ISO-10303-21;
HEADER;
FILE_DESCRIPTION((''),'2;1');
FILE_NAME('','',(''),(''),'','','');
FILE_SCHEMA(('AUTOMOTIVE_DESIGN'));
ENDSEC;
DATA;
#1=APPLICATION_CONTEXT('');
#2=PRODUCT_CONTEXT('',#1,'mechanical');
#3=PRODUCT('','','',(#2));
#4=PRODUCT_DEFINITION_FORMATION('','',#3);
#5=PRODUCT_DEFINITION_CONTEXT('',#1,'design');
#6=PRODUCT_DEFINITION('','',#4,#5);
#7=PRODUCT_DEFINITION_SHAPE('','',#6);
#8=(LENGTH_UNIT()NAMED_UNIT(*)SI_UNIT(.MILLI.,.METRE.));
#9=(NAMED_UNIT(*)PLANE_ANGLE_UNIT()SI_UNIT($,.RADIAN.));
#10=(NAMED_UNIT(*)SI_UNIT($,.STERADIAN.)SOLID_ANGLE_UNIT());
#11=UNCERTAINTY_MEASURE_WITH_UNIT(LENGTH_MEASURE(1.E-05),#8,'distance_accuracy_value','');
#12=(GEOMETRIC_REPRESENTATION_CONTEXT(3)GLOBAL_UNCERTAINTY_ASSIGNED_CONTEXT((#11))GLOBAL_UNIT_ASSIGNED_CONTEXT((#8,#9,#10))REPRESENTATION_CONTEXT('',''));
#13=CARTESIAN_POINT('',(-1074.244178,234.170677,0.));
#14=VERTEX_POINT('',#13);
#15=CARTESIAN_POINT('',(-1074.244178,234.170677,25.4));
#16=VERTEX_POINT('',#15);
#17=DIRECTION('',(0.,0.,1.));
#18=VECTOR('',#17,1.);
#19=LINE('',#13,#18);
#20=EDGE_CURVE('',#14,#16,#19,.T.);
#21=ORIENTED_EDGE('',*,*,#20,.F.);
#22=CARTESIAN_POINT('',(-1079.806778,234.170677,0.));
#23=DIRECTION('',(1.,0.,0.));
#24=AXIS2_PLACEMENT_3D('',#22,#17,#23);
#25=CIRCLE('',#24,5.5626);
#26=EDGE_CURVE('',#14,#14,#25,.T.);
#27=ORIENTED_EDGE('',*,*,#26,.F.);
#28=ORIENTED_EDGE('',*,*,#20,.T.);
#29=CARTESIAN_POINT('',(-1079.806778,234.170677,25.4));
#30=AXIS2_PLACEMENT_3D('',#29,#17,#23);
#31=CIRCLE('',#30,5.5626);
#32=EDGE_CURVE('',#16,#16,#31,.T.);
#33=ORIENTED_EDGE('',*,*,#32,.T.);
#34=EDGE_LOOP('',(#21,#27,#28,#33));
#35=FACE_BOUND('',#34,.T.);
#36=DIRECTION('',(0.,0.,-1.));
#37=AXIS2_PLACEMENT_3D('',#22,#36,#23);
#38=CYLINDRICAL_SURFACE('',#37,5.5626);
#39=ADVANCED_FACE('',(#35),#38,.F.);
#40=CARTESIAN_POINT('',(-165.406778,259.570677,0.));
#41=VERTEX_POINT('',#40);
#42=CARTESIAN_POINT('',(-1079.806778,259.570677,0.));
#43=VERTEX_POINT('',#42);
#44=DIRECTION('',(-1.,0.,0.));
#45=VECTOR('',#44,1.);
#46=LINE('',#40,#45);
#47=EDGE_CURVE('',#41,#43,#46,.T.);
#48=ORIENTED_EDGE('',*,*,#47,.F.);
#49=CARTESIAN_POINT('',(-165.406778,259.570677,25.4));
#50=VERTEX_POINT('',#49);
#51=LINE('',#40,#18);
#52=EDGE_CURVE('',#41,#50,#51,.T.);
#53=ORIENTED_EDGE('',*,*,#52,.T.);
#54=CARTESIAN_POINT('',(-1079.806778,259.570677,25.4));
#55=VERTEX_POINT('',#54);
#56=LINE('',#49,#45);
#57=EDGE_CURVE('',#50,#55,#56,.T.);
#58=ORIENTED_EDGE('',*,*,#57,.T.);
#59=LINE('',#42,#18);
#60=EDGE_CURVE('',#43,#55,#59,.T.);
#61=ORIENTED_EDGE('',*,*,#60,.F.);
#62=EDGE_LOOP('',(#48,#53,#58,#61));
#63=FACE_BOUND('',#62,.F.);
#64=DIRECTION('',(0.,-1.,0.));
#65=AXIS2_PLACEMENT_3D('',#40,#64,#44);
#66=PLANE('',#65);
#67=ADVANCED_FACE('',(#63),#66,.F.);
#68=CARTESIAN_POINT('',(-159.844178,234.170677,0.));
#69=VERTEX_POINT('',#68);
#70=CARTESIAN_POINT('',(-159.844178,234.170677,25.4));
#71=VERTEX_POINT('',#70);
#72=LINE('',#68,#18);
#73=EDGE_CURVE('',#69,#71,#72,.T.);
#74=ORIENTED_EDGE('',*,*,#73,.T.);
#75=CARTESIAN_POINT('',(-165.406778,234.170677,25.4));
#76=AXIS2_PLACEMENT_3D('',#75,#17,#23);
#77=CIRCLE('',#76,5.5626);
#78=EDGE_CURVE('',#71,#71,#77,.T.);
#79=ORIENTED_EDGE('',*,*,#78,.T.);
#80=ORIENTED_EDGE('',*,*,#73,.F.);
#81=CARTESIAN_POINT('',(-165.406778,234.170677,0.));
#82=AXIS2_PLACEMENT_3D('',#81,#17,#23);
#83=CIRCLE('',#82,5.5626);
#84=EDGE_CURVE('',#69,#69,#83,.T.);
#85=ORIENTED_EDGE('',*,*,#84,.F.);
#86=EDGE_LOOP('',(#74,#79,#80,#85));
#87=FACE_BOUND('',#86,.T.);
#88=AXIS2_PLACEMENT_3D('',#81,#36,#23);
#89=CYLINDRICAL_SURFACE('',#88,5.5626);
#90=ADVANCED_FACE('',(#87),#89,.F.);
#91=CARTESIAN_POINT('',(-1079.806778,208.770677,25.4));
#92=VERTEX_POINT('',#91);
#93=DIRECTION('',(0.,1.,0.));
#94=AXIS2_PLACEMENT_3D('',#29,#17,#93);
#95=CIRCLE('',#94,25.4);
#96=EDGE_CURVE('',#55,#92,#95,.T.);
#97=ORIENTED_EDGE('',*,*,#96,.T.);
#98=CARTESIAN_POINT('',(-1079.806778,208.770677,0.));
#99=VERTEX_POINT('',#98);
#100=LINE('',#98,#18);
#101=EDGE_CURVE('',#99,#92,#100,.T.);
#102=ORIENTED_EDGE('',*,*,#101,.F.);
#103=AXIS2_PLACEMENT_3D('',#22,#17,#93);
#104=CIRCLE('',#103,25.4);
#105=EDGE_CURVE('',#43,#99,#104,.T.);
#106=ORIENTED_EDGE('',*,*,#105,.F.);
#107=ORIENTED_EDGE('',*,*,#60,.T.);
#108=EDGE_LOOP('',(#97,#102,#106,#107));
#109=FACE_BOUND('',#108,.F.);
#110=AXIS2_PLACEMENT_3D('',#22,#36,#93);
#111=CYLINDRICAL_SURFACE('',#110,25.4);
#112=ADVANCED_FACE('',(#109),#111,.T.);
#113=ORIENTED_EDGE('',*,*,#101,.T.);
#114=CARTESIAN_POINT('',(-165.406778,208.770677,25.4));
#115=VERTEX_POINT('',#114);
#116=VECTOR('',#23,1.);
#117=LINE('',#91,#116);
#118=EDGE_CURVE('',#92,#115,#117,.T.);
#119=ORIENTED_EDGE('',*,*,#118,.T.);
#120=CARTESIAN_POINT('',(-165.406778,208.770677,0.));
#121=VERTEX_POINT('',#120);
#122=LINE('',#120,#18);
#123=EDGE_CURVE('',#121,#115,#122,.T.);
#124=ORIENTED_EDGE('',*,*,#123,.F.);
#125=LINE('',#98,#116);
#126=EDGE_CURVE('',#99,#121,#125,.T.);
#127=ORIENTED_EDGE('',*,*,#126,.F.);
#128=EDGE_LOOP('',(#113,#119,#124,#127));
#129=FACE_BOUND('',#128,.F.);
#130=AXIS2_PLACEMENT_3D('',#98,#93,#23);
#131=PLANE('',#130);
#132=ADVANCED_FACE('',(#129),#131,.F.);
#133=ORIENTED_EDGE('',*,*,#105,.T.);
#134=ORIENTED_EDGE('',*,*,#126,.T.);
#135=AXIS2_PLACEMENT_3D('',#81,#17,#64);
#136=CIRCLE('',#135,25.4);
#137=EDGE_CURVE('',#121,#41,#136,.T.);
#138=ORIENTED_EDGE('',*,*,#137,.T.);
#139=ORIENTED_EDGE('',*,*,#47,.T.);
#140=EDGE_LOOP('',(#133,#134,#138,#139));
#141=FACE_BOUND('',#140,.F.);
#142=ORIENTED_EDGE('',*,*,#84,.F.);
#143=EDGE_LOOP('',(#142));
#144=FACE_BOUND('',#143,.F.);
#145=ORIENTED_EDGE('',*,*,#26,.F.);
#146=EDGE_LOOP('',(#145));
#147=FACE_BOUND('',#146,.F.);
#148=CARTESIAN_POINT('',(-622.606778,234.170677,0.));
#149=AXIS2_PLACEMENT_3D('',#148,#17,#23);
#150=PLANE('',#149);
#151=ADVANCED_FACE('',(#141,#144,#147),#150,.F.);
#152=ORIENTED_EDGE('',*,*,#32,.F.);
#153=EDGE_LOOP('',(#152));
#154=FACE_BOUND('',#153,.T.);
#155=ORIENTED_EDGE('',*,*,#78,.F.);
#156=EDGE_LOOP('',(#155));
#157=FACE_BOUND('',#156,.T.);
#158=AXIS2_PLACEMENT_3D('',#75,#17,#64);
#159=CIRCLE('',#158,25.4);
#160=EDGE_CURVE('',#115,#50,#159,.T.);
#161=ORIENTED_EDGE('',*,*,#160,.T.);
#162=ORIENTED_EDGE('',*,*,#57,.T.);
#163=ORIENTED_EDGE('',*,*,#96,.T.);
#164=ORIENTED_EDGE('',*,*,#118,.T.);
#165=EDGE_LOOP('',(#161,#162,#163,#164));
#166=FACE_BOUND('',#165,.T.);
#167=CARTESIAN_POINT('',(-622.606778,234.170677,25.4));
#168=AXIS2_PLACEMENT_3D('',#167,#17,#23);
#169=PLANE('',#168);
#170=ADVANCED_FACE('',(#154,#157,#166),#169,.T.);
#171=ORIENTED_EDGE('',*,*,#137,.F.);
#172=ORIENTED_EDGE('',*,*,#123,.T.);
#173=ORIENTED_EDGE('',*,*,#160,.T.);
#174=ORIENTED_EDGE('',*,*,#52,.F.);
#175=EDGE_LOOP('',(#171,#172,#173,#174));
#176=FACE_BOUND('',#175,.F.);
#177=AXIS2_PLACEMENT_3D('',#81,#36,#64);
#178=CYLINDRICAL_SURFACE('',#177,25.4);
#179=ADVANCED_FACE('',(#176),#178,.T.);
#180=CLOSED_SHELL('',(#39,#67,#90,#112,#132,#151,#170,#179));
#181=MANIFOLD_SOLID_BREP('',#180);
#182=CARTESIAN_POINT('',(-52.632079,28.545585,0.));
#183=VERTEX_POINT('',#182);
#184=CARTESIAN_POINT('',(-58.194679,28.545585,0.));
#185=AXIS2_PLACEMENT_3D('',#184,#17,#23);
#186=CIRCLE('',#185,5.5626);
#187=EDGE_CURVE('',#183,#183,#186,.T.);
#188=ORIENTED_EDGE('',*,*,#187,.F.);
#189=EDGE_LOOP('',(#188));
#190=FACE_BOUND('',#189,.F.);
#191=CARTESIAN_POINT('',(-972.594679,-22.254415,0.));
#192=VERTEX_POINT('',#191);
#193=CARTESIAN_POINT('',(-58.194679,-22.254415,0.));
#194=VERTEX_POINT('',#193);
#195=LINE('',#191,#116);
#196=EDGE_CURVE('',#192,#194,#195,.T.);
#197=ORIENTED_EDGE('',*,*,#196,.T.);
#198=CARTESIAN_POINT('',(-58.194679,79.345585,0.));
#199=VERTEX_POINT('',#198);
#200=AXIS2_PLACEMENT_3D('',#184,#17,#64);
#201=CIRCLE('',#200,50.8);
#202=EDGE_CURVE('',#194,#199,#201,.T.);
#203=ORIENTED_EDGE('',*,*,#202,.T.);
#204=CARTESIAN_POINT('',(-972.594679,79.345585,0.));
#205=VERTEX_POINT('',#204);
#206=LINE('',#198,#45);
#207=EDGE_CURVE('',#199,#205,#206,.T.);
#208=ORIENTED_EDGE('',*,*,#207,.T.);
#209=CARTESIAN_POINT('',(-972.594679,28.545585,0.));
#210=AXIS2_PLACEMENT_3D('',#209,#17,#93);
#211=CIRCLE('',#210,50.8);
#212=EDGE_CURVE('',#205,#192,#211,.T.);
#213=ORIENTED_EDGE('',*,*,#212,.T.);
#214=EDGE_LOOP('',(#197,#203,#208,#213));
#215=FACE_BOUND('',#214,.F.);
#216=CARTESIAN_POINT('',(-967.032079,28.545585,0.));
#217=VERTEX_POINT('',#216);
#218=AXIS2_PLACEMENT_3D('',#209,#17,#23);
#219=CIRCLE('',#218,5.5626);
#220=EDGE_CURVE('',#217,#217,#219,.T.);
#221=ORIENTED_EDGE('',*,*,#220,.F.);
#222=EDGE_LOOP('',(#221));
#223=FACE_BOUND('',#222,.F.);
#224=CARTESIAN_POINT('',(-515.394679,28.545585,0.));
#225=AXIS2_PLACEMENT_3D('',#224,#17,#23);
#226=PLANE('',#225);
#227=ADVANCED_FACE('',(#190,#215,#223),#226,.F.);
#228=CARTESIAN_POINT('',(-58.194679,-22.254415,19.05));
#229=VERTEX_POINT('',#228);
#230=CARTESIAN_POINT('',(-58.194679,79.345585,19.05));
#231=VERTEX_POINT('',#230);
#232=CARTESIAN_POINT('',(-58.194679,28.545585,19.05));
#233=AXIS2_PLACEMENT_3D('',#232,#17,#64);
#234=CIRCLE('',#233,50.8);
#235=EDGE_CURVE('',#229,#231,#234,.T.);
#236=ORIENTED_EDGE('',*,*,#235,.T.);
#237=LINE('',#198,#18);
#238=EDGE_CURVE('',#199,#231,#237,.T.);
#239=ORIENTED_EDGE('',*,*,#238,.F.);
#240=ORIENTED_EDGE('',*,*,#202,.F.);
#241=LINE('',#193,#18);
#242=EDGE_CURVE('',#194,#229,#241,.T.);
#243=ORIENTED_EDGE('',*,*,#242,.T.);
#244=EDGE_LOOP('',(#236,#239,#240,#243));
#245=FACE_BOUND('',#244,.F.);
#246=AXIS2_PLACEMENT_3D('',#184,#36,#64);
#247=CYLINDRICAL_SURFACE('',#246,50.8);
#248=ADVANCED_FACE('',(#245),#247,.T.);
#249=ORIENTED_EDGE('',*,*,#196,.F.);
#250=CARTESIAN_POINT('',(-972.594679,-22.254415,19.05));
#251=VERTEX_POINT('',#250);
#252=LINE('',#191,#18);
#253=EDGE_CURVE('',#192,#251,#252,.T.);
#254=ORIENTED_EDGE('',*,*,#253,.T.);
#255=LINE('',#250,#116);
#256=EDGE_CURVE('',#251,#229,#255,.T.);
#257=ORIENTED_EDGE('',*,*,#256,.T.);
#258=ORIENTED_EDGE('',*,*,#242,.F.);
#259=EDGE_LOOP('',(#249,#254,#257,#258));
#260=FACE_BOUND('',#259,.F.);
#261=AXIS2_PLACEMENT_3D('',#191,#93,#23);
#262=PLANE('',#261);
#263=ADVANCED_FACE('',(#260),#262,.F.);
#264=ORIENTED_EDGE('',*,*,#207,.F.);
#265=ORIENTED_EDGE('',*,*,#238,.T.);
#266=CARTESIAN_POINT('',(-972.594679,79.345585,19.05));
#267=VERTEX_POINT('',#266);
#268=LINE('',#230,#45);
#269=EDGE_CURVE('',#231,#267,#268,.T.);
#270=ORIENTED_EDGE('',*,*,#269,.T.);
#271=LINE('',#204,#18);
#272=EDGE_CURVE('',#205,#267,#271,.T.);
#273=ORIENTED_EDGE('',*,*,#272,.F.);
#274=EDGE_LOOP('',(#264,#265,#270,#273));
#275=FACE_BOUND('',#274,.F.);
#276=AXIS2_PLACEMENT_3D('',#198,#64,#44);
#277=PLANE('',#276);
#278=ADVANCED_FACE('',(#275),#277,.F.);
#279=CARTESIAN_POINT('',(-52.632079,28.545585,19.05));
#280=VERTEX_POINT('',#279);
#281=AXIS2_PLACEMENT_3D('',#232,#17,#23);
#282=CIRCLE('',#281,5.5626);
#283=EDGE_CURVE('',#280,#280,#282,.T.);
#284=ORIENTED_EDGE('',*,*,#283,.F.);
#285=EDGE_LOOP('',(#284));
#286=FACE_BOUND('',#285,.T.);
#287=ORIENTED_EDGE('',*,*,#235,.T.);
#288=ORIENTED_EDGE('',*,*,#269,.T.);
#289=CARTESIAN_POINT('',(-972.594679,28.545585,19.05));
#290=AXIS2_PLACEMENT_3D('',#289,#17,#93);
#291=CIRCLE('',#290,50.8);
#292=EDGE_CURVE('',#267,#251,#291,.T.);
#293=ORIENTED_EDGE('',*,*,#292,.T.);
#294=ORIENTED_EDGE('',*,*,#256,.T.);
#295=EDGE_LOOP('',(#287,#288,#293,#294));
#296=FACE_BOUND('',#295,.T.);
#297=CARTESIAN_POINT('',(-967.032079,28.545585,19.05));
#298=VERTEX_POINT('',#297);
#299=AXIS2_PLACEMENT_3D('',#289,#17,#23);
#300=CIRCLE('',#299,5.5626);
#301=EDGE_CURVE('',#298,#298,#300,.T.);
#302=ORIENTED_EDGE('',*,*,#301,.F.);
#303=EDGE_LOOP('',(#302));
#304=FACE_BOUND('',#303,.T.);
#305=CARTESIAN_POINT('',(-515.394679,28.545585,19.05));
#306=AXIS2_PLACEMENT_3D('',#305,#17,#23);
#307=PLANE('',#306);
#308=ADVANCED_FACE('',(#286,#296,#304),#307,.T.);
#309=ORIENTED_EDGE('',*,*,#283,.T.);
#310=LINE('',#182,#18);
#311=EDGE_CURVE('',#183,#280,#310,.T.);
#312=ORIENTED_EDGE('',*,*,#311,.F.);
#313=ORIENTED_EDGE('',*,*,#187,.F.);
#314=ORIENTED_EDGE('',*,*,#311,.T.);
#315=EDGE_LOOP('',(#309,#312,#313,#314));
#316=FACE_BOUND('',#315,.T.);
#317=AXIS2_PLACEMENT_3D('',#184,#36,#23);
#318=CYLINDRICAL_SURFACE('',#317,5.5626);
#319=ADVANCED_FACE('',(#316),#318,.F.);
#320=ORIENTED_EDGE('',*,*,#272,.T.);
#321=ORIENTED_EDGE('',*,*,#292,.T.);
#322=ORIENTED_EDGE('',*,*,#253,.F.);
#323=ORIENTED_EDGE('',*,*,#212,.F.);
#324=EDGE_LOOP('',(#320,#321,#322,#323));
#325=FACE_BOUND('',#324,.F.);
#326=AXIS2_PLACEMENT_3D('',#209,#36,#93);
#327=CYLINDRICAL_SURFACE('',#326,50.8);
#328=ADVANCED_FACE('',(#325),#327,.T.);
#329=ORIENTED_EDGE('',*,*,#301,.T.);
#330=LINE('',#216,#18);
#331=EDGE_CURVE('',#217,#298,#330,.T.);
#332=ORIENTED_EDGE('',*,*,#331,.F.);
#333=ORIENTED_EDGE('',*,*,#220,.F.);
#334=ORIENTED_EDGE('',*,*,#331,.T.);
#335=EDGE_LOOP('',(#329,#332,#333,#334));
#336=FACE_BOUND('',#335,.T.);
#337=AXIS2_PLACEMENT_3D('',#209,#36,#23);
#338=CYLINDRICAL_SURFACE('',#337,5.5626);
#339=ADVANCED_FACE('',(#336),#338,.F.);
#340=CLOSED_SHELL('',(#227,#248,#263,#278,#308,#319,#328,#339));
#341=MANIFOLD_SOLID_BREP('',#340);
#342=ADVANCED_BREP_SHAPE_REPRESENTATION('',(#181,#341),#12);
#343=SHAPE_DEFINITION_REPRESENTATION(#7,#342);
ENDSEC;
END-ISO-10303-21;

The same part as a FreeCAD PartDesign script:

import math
import FreeCAD as App
import Part
import Sketcher

V = App.Vector
Q = App.Units.Quantity

doc = App.newDocument("Part")
body = doc.addObject("PartDesign::Body", "Body")

sketch1 = doc.addObject("Sketcher::SketchObject", "Sketch")
body.addObject(sketch1)
sketch1.AttachmentSupport = (doc.XY_Plane, [""])
sketch1.MapMode = "FlatFace"
sketch1.addGeometry([
    Part.LineSegment(V(-58.194679, 79.345585, 0), V(-972.594679, 79.345585, 0)),
    Part.ArcOfCircle(Part.Circle(V(-972.594679, 28.545585, 0), V(0, 0, 1), 50.8), math.radians(90), math.radians(270)),
    Part.LineSegment(V(-972.594679, -22.254415, 0), V(-58.194679, -22.254415, 0)),
    Part.ArcOfCircle(Part.Circle(V(-58.194679, 28.545585, 0), V(0, 0, 1), 50.8), math.radians(-90), math.radians(90)),
    Part.Circle(V(-972.594679, 28.545585, 0), V(0, 0, 1), 5.5626),
    Part.Circle(V(-58.194679, 28.545585, 0), V(0, 0, 1), 5.5626),
], False)
sketch1.addConstraint([
    Sketcher.Constraint("Tangent", 0, 2, 1, 1),
    Sketcher.Constraint("Tangent", 1, 2, 2, 1),
    Sketcher.Constraint("Tangent", 2, 2, 3, 1),
    Sketcher.Constraint("Tangent", 3, 2, 0, 1),
    Sketcher.Constraint("Horizontal", 0),
    Sketcher.Constraint("Horizontal", 2),
    Sketcher.Constraint("Coincident", 4, 3, 1, 3),
    Sketcher.Constraint("Coincident", 5, 3, 3, 3),
    Sketcher.Constraint("Equal", 4, 5),
    Sketcher.Constraint("Radius", 1, Q("2 in")),
    Sketcher.Constraint("DistanceX", 0, 2, 0, 1, Q("36 in")),
    Sketcher.Constraint("Diameter", 4, Q("0.438 in")),
    Sketcher.Constraint("DistanceX", 1, 3, -1, 1, 972.594679),
    Sketcher.Constraint("DistanceY", -1, 1, 1, 3, 28.545585),
])
pad1 = doc.addObject("PartDesign::Pad", "Pad")
body.addObject(pad1)
pad1.Profile = sketch1
pad1.Length = Q("0.75 in")
body2 = doc.addObject("PartDesign::Body", "Body001")

sketch2 = doc.addObject("Sketcher::SketchObject", "Sketch001")
body2.addObject(sketch2)
sketch2.AttachmentSupport = (doc.getObject("XY_Plane001"), [""])
sketch2.MapMode = "FlatFace"
sketch2.addGeometry([
    Part.LineSegment(V(-165.406778, 259.570677, 0), V(-1079.806778, 259.570677, 0)),
    Part.ArcOfCircle(Part.Circle(V(-1079.806778, 234.170677, 0), V(0, 0, 1), 25.4), math.radians(90), math.radians(270)),
    Part.LineSegment(V(-1079.806778, 208.770677, 0), V(-165.406778, 208.770677, 0)),
    Part.ArcOfCircle(Part.Circle(V(-165.406778, 234.170677, 0), V(0, 0, 1), 25.4), math.radians(-90), math.radians(90)),
    Part.Circle(V(-1079.806778, 234.170677, 0), V(0, 0, 1), 5.5626),
    Part.Circle(V(-165.406778, 234.170677, 0), V(0, 0, 1), 5.5626),
], False)
sketch2.addConstraint([
    Sketcher.Constraint("Tangent", 0, 2, 1, 1),
    Sketcher.Constraint("Tangent", 1, 2, 2, 1),
    Sketcher.Constraint("Tangent", 2, 2, 3, 1),
    Sketcher.Constraint("Tangent", 3, 2, 0, 1),
    Sketcher.Constraint("Horizontal", 0),
    Sketcher.Constraint("Horizontal", 2),
    Sketcher.Constraint("Coincident", 4, 3, 1, 3),
    Sketcher.Constraint("Coincident", 5, 3, 3, 3),
    Sketcher.Constraint("Equal", 4, 5),
    Sketcher.Constraint("Radius", 1, Q("1 in")),
    Sketcher.Constraint("DistanceX", 0, 2, 0, 1, Q("36 in")),
    Sketcher.Constraint("Diameter", 4, Q("0.438 in")),
    Sketcher.Constraint("DistanceX", 1, 3, -1, 1, 1079.806778),
    Sketcher.Constraint("DistanceY", -1, 1, 1, 3, 234.170677),
])
pad2 = doc.addObject("PartDesign::Pad", "Pad001")
body2.addObject(pad2)
pad2.Profile = sketch2
pad2.Length = Q("1 in")

doc.recompute()
